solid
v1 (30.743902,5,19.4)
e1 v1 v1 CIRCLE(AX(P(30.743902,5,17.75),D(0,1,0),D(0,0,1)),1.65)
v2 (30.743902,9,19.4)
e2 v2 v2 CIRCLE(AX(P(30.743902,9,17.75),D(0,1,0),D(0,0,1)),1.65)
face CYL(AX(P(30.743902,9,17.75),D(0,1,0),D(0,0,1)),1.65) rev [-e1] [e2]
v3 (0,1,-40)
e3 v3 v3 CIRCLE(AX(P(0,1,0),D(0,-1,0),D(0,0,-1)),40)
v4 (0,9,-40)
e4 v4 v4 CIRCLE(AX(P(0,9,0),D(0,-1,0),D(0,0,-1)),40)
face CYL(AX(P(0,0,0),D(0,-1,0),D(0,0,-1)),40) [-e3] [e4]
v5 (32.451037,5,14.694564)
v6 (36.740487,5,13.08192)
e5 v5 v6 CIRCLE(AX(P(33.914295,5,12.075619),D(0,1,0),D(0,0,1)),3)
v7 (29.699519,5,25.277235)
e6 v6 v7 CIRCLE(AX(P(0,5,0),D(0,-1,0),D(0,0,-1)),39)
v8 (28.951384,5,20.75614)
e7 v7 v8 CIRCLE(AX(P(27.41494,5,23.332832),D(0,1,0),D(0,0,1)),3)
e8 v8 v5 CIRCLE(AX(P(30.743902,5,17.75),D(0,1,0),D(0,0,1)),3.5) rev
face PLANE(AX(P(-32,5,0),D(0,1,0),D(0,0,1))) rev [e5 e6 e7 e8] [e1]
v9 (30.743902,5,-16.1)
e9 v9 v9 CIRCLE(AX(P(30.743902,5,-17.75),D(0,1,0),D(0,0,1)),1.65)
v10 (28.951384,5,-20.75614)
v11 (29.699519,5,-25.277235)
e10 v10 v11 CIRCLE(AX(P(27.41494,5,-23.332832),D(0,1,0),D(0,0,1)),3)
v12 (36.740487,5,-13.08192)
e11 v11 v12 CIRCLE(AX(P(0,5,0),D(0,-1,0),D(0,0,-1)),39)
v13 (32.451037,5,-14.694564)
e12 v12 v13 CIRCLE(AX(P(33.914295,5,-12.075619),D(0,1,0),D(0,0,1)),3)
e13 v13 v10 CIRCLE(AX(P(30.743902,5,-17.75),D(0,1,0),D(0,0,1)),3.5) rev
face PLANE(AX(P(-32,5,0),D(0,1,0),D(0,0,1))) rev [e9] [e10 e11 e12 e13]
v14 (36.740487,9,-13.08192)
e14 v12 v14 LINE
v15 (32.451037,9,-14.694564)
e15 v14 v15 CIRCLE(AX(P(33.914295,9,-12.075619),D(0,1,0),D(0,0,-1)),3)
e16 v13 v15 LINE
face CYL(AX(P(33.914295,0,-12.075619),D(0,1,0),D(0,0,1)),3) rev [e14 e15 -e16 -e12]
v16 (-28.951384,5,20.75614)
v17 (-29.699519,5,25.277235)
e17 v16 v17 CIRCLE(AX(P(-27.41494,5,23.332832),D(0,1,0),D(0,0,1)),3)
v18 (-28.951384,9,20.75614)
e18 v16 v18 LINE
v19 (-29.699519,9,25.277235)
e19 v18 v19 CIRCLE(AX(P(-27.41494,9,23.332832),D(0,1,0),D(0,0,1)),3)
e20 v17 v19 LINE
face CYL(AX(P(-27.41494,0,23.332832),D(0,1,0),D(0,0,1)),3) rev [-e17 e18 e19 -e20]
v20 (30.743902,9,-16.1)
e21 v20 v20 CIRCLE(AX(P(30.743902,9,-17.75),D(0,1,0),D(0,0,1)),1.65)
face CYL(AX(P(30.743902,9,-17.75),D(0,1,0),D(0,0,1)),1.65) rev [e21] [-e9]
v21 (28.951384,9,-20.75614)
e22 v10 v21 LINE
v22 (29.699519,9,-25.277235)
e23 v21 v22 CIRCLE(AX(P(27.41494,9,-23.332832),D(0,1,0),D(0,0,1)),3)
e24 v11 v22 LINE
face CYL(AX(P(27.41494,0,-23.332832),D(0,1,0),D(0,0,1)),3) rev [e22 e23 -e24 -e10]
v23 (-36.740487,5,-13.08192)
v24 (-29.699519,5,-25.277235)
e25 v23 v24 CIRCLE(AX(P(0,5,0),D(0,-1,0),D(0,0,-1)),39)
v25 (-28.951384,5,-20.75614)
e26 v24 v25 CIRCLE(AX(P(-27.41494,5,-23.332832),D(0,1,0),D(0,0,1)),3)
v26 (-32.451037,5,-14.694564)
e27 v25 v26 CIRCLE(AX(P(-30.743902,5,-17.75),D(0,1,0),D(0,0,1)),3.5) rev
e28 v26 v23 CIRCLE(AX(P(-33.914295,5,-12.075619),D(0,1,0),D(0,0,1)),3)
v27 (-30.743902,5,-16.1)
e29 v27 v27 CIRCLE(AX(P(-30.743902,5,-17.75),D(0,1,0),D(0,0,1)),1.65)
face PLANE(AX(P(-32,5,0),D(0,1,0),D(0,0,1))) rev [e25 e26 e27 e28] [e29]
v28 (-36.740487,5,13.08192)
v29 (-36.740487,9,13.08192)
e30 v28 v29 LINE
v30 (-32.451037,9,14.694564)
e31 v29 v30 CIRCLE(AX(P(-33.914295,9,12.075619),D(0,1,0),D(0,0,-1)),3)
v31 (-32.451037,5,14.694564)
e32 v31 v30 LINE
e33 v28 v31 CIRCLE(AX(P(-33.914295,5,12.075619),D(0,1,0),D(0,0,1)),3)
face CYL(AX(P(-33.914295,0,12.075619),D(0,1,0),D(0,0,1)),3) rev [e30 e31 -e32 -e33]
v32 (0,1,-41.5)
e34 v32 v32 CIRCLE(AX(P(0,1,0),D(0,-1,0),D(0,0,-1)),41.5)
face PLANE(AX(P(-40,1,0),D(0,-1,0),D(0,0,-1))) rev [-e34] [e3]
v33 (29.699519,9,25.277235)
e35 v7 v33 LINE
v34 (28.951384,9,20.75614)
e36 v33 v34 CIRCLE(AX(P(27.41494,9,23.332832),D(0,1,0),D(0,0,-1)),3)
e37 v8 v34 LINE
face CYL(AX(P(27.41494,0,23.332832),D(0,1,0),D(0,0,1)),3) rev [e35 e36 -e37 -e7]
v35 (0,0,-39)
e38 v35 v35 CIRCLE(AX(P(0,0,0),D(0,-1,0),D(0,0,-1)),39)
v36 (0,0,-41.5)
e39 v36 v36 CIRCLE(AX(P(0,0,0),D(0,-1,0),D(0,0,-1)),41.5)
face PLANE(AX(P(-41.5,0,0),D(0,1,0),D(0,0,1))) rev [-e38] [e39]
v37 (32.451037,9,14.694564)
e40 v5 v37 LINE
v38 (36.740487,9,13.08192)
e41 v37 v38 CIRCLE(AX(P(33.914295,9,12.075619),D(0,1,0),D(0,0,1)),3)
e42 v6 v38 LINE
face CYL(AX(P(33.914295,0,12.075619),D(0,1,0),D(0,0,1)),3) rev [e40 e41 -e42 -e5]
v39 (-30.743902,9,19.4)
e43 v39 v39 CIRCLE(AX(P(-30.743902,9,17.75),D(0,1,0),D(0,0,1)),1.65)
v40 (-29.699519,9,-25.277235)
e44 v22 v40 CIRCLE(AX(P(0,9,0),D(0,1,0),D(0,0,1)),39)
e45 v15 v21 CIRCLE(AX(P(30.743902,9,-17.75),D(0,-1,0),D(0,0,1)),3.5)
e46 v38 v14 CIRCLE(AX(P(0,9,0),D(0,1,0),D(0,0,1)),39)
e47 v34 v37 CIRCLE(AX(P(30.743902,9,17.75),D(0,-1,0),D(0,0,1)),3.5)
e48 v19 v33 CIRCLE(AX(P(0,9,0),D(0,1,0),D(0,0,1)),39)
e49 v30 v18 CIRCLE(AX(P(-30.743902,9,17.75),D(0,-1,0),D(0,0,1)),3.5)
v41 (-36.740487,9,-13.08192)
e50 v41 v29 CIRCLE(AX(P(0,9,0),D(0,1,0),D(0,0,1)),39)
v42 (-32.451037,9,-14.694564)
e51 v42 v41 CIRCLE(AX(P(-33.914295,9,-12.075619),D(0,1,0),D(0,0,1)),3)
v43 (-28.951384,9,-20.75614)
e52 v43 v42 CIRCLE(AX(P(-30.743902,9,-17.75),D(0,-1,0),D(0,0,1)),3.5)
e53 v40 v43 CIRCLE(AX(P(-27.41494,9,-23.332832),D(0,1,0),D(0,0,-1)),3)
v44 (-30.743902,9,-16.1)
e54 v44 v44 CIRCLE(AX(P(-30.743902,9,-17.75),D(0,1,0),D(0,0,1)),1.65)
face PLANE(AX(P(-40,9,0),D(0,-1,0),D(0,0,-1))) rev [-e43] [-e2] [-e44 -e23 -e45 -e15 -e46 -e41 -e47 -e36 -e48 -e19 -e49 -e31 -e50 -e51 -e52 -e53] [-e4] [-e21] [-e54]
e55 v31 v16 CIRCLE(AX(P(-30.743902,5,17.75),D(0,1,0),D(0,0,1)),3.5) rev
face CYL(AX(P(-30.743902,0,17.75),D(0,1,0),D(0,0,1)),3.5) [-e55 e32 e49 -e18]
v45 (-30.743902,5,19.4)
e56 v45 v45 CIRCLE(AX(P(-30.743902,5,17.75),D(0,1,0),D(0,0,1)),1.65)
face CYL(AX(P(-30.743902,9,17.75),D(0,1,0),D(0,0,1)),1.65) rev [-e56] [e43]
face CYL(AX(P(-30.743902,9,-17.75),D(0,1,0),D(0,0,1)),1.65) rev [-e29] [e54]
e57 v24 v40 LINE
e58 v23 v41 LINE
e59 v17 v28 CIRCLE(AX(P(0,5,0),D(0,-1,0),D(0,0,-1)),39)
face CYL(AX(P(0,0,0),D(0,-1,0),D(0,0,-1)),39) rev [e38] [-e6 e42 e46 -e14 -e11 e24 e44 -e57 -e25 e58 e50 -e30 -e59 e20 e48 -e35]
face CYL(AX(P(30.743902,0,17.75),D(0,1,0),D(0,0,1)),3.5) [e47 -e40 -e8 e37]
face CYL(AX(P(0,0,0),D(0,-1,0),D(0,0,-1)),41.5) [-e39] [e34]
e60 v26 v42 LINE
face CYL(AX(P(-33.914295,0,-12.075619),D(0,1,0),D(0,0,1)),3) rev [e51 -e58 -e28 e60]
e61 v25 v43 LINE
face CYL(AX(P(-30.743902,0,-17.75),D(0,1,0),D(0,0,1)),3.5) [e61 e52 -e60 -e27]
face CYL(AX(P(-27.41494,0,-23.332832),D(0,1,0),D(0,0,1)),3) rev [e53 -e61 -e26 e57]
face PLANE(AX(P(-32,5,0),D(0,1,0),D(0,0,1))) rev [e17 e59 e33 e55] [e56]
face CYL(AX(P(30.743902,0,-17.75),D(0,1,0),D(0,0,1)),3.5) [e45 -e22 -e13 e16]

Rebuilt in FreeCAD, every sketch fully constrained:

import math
import FreeCAD as App
import Part
import Sketcher
Q = App.Units.Quantity


def add_polygon(sketch, points):
    """Adds a closed chain of lines whose ends are joined by coincident constraints."""
    first, n = sketch.GeometryCount, len(points)
    for a, b in zip(points, points[1:] + points[:1]):
        sketch.addGeometry(Part.LineSegment(App.Vector(*a, 0), App.Vector(*b, 0)), False)
    for i in range(n):
        sketch.addConstraint(Sketcher.Constraint("Coincident", first + i, 2, first + (i + 1) % n, 1))

doc = App.newDocument("Part")
params = doc.addObject("Spreadsheet::Sheet", "Params")
for row, (alias, value) in enumerate([
    ("sketch1_width", "7 mm"),
    ("sketch1_width2", "8 mm"),
    ("sketch1_height", "5 mm"),
    ("sketch1_height2", "4 mm"),
    ("sketch1_width3", "2.5 mm"),
    ("revolution_angle", "360 deg"),
    ("sketch2_diameter", "3.3 mm"),
    ("hole_diameter", "3.3 mm"),
    ("sketch3_radius", "3 mm"),
    ("sketch3_radius2", "39.000001 mm"),
    ("sketch3_radius3", "3.5 mm"),
], start=1):
    params.set(f"A{row}", alias)
    params.set(f"B{row}", "=" + value)
    params.setAlias(f"B{row}", alias)

body = doc.addObject("PartDesign::Body", "Body")

sketch1 = body.newObject("Sketcher::SketchObject", "Sketch")
sketch1.AttachmentSupport = (doc.getObject("XY_Plane"), [""])
sketch1.MapMode = "FlatFace"
add_polygon(sketch1, [(-41.5, 0), (-39, 0), (-39, 5), (-32, 5), (-32, 9), (-40, 9), (-40, 1), (-41.5, 1)])
sketch1.addConstraint(Sketcher.Constraint("Horizontal", 0))
sketch1.addConstraint(Sketcher.Constraint("Vertical", 1))
sketch1.addConstraint(Sketcher.Constraint("Horizontal", 2))
sketch1.addConstraint(Sketcher.Constraint("Vertical", 3))
sketch1.addConstraint(Sketcher.Constraint("Horizontal", 4))
sketch1.addConstraint(Sketcher.Constraint("Vertical", 5))
sketch1.addConstraint(Sketcher.Constraint("Horizontal", 6))
sketch1.addConstraint(Sketcher.Constraint("Vertical", 7))
sketch1.addConstraint(Sketcher.Constraint("PointOnObject", 0, 2, -1))
sketch1.addConstraint(Sketcher.Constraint("Equal", 4, 5))
sketch1.addConstraint(Sketcher.Constraint("DistanceX", 2, 1, 2, 2, Q("7 mm")))
sketch1.addConstraint(Sketcher.Constraint("DistanceX", 4, 2, 4, 1, Q("8 mm")))
sketch1.addConstraint(Sketcher.Constraint("DistanceY", 1, 1, 1, 2, Q("5 mm")))
sketch1.addConstraint(Sketcher.Constraint("DistanceY", 3, 1, 3, 2, Q("4 mm")))
sketch1.addConstraint(Sketcher.Constraint("DistanceX", 0, 1, 0, 2, Q("2.5 mm")))
sketch1.addConstraint(Sketcher.Constraint("DistanceX", 0, 2, -1, 1, Q("39 mm")))
sketch1.setExpression("Constraints[18]", "Params.sketch1_width")
sketch1.setExpression("Constraints[19]", "Params.sketch1_width2")
sketch1.setExpression("Constraints[20]", "Params.sketch1_height")
sketch1.setExpression("Constraints[21]", "Params.sketch1_height2")
sketch1.setExpression("Constraints[22]", "Params.sketch1_width3")
revolution = body.newObject("PartDesign::Revolution", "Revolution")
revolution.Profile = sketch1
revolution.ReferenceAxis = (sketch1, ["V_Axis"])
revolution.setExpression("Angle", "Params.revolution_angle")

sketch2 = body.newObject("Sketcher::SketchObject", "Sketch001")
sketch2.AttachmentSupport = (doc.getObject("XZ_Plane"), [""])
sketch2.MapMode = "FlatFace"
sketch2.AttachmentOffset = App.Placement(App.Vector(0, 0, -9), App.Rotation())
sketch2.addGeometry(Part.Circle(App.Vector(0, -35.5, 0), App.Vector(0, 0, 1), 1.6), False)
sketch2.addGeometry(Part.Circle(App.Vector(-30.7, -17.8, 0), App.Vector(0, 0, 1), 1.6), False)
sketch2.addGeometry(Part.Circle(App.Vector(-30.7, 17.8, 0), App.Vector(0, 0, 1), 1.6), False)
sketch2.addGeometry(Part.Circle(App.Vector(0, 35.5, 0), App.Vector(0, 0, 1), 1.6), False)
sketch2.addGeometry(Part.Circle(App.Vector(30.7, 17.8, 0), App.Vector(0, 0, 1), 1.6), False)
sketch2.addGeometry(Part.Circle(App.Vector(30.7, -17.8, 0), App.Vector(0, 0, 1), 1.6), False)
sketch2.addConstraint(Sketcher.Constraint("Equal", 0, 1))
sketch2.addConstraint(Sketcher.Constraint("Equal", 1, 2))
sketch2.addConstraint(Sketcher.Constraint("Equal", 2, 3))
sketch2.addConstraint(Sketcher.Constraint("Equal", 3, 4))
sketch2.addConstraint(Sketcher.Constraint("Equal", 4, 5))
sketch2.addConstraint(Sketcher.Constraint("Symmetric", 0, 3, 3, 3, -1, 1))
sketch2.addConstraint(Sketcher.Constraint("Symmetric", 1, 3, 4, 3, -1, 1))
sketch2.addConstraint(Sketcher.Constraint("Symmetric", 2, 3, 5, 3, -1, 1))
sketch2.addConstraint(Sketcher.Constraint("Symmetric", 2, 3, 4, 3, -2))
sketch2.addConstraint(Sketcher.Constraint("PointOnObject", 0, 3, -2))
sketch2.addConstraint(Sketcher.Constraint("Diameter", 0, Q("3.3 mm")))
sketch2.addConstraint(Sketcher.Constraint("DistanceY", 0, 3, 3, 3, Q("71 mm")))
sketch2.addConstraint(Sketcher.Constraint("DistanceY", 1, 3, 2, 3, Q("35.5 mm")))
sketch2.addConstraint(Sketcher.Constraint("DistanceX", 1, 3, -1, 1, Q("30.743902 mm")))
sketch2.setExpression("Constraints[10]", "Params.sketch2_diameter")
doc.recompute()
hole = body.newObject("PartDesign::Hole", "Hole")
hole.Profile = sketch2
hole.ThreadType = "None"
hole.setExpression("Diameter", "Params.hole_diameter")
hole.DepthType = "ThroughAll"
hole.Reversed = True

sketch3 = body.newObject("Sketcher::SketchObject", "Sketch002")
sketch3.AttachmentSupport = (doc.getObject("XZ_Plane"), [""])
sketch3.MapMode = "FlatFace"
sketch3.AttachmentOffset = App.Placement(App.Vector(0, 0, -9), App.Rotation())
sketch3.addGeometry(Part.ArcOfCircle(Part.Circle(App.Vector(-30.7, -17.7, 0), App.Vector(0, 0, 1), 3.5), math.radians(-59), math.radians(119)), False)
sketch3.addGeometry(Part.ArcOfCircle(Part.Circle(App.Vector(-33.9, -12.1, 0), App.Vector(0, 0, 1), 3), math.radians(-160), math.radians(-61)), False)
sketch3.addGeometry(Part.ArcOfCircle(Part.Circle(App.Vector(0, 0, 0), App.Vector(0, 0, 1), 39), math.radians(160), math.radians(200)), False)
sketch3.addGeometry(Part.ArcOfCircle(Part.Circle(App.Vector(-33.9, 12.1, 0), App.Vector(0, 0, 1), 3), math.radians(61), math.radians(160)), False)
sketch3.addGeometry(Part.ArcOfCircle(Part.Circle(App.Vector(-30.7, 17.7, 0), App.Vector(0, 0, 1), 3.5), math.radians(-119), math.radians(59)), False)
sketch3.addGeometry(Part.ArcOfCircle(Part.Circle(App.Vector(-27.4, 23.3, 0), App.Vector(0, 0, 1), 3), math.radians(140), math.radians(239)), False)
sketch3.addGeometry(Part.ArcOfCircle(Part.Circle(App.Vector(0, 0, 0), App.Vector(0, 0, 1), 39), math.radians(100), math.radians(140)), False)
sketch3.addGeometry(Part.ArcOfCircle(Part.Circle(App.Vector(0, 0, 0), App.Vector(0, 0, 1), 39), math.radians(80), math.radians(100)), False)
sketch3.addGeometry(Part.ArcOfCircle(Part.Circle(App.Vector(0, 0, 0), App.Vector(0, 0, 1), 39), math.radians(40), math.radians(80)), False)
sketch3.addGeometry(Part.ArcOfCircle(Part.Circle(App.Vector(27.4, 23.3, 0), App.Vector(0, 0, 1), 3), math.radians(-59), math.radians(40)), False)
sketch3.addGeometry(Part.ArcOfCircle(Part.Circle(App.Vector(30.7, 17.7, 0), App.Vector(0, 0, 1), 3.5), math.radians(121), math.radians(299)), False)
sketch3.addGeometry(Part.ArcOfCircle(Part.Circle(App.Vector(33.9, 12.1, 0), App.Vector(0, 0, 1), 3), math.radians(20), math.radians(119)), False)
sketch3.addGeometry(Part.ArcOfCircle(Part.Circle(App.Vector(0, 0, 0), App.Vector(0, 0, 1), 39), math.radians(-20), math.radians(20)), False)
sketch3.addGeometry(Part.ArcOfCircle(Part.Circle(App.Vector(33.9, -12.1, 0), App.Vector(0, 0, 1), 3), math.radians(-119), math.radians(-20)), False)
sketch3.addGeometry(Part.ArcOfCircle(Part.Circle(App.Vector(30.7, -17.7, 0), App.Vector(0, 0, 1), 3.5), math.radians(61), math.radians(239)), False)
sketch3.addGeometry(Part.ArcOfCircle(Part.Circle(App.Vector(27.4, -23.3, 0), App.Vector(0, 0, 1), 3), math.radians(-40), math.radians(59)), False)
sketch3.addGeometry(Part.ArcOfCircle(Part.Circle(App.Vector(0, 0, 0), App.Vector(0, 0, 1), 39), math.radians(-80), math.radians(-40)), False)
sketch3.addGeometry(Part.ArcOfCircle(Part.Circle(App.Vector(0, 0, 0), App.Vector(0, 0, 1), 39), math.radians(-100), math.radians(-80)), False)
sketch3.addGeometry(Part.ArcOfCircle(Part.Circle(App.Vector(0, 0, 0), App.Vector(0, 0, 1), 39), math.radians(-140), math.radians(-100)), False)
sketch3.addGeometry(Part.ArcOfCircle(Part.Circle(App.Vector(-27.4, -23.3, 0), App.Vector(0, 0, 1), 3), math.radians(121), math.radians(220)), False)
sketch3.addConstraint(Sketcher.Constraint("Tangent", 0, 2, 1, 2))
sketch3.addConstraint(Sketcher.Constraint("Tangent", 1, 1, 2, 2))
sketch3.addConstraint(Sketcher.Constraint("Tangent", 2, 1, 3, 2))
sketch3.addConstraint(Sketcher.Constraint("Tangent", 3, 1, 4, 1))
sketch3.addConstraint(Sketcher.Constraint("Tangent", 4, 2, 5, 2))
sketch3.addConstraint(Sketcher.Constraint("Tangent", 5, 1, 6, 2))
sketch3.addConstraint(Sketcher.Constraint("Tangent", 6, 1, 7, 2))
sketch3.addConstraint(Sketcher.Constraint("Tangent", 7, 1, 8, 2))
sketch3.addConstraint(Sketcher.Constraint("Tangent", 8, 1, 9, 2))
sketch3.addConstraint(Sketcher.Constraint("Tangent", 9, 1, 10, 1))
sketch3.addConstraint(Sketcher.Constraint("Tangent", 10, 2, 11, 2))
sketch3.addConstraint(Sketcher.Constraint("Tangent", 11, 1, 12, 2))
sketch3.addConstraint(Sketcher.Constraint("Tangent", 12, 1, 13, 2))
sketch3.addConstraint(Sketcher.Constraint("Tangent", 13, 1, 14, 1))
sketch3.addConstraint(Sketcher.Constraint("Tangent", 14, 2, 15, 2))
sketch3.addConstraint(Sketcher.Constraint("Tangent", 15, 1, 16, 2))
sketch3.addConstraint(Sketcher.Constraint("Tangent", 16, 1, 17, 2))
sketch3.addConstraint(Sketcher.Constraint("Tangent", 17, 1, 18, 2))
sketch3.addConstraint(Sketcher.Constraint("Tangent", 18, 1, 19, 2))
sketch3.addConstraint(Sketcher.Constraint("Tangent", 19, 1, 0, 1))
sketch3.addConstraint(Sketcher.Constraint("Coincident", 2, 3, -1, 1))
sketch3.addConstraint(Sketcher.Constraint("Coincident", 6, 3, -1, 1))
sketch3.addConstraint(Sketcher.Constraint("Coincident", 8, 3, -1, 1))
sketch3.addConstraint(Sketcher.Constraint("Coincident", 12, 3, -1, 1))
sketch3.addConstraint(Sketcher.Constraint("Coincident", 16, 3, -1, 1))
sketch3.addConstraint(Sketcher.Constraint("Coincident", 18, 3, -1, 1))
sketch3.addConstraint(Sketcher.Constraint("Equal", 1, 3))
sketch3.addConstraint(Sketcher.Constraint("Equal", 0, 4))
sketch3.addConstraint(Sketcher.Constraint("Equal", 3, 5))
sketch3.addConstraint(Sketcher.Constraint("Equal", 5, 9))
sketch3.addConstraint(Sketcher.Constraint("Equal", 4, 10))
sketch3.addConstraint(Sketcher.Constraint("Equal", 9, 11))
sketch3.addConstraint(Sketcher.Constraint("Equal", 7, 12))
sketch3.addConstraint(Sketcher.Constraint("Equal", 11, 13))
sketch3.addConstraint(Sketcher.Constraint("Equal", 10, 14))
sketch3.addConstraint(Sketcher.Constraint("Equal", 13, 15))
sketch3.addConstraint(Sketcher.Constraint("Equal", 8, 16))
sketch3.addConstraint(Sketcher.Constraint("Equal", 15, 19))
sketch3.addConstraint(Sketcher.Constraint("Symmetric", 0, 3, 10, 3, -1, 1))
sketch3.addConstraint(Sketcher.Constraint("Symmetric", 3, 3, 13, 3, -1, 1))
sketch3.addConstraint(Sketcher.Constraint("Symmetric", 4, 3, 10, 3, -2))
sketch3.addConstraint(Sketcher.Constraint("Horizontal", 0, 3, 14, 3))
sketch3.addConstraint(Sketcher.Constraint("Horizontal", 6, 1, 7, 1))
sketch3.addConstraint(Sketcher.Constraint("Horizontal", 16, 1, 17, 1))
sketch3.addConstraint(Sketcher.Constraint("Vertical", 7, 1, 16, 1))
sketch3.addConstraint(Sketcher.Constraint("Radius", 1, Q("3 mm")))
sketch3.addConstraint(Sketcher.Constraint("Radius", 6, Q("39.000001 mm")))
sketch3.addConstraint(Sketcher.Constraint("Radius", 0, Q("3.5 mm")))
sketch3.addConstraint(Sketcher.Constraint("DistanceY", 0, 3, 4, 3, Q("35.5 mm")))
sketch3.addConstraint(Sketcher.Constraint("DistanceX", 0, 3, -1, 1, Q("30.743902 mm")))
sketch3.addConstraint(Sketcher.Constraint("DistanceX", -1, 1, 7, 1, Q("7.040968 mm")))
sketch3.setExpression("Constraints[45]", "Params.sketch3_radius")
sketch3.setExpression("Constraints[46]", "Params.sketch3_radius2")
sketch3.setExpression("Constraints[47]", "Params.sketch3_radius3")
pocket1 = body.newObject("PartDesign::Pocket", "Pocket")
pocket1.Profile = sketch3
pocket1.Type = "ThroughAll"
pocket1.Reversed = True

doc.recompute()
